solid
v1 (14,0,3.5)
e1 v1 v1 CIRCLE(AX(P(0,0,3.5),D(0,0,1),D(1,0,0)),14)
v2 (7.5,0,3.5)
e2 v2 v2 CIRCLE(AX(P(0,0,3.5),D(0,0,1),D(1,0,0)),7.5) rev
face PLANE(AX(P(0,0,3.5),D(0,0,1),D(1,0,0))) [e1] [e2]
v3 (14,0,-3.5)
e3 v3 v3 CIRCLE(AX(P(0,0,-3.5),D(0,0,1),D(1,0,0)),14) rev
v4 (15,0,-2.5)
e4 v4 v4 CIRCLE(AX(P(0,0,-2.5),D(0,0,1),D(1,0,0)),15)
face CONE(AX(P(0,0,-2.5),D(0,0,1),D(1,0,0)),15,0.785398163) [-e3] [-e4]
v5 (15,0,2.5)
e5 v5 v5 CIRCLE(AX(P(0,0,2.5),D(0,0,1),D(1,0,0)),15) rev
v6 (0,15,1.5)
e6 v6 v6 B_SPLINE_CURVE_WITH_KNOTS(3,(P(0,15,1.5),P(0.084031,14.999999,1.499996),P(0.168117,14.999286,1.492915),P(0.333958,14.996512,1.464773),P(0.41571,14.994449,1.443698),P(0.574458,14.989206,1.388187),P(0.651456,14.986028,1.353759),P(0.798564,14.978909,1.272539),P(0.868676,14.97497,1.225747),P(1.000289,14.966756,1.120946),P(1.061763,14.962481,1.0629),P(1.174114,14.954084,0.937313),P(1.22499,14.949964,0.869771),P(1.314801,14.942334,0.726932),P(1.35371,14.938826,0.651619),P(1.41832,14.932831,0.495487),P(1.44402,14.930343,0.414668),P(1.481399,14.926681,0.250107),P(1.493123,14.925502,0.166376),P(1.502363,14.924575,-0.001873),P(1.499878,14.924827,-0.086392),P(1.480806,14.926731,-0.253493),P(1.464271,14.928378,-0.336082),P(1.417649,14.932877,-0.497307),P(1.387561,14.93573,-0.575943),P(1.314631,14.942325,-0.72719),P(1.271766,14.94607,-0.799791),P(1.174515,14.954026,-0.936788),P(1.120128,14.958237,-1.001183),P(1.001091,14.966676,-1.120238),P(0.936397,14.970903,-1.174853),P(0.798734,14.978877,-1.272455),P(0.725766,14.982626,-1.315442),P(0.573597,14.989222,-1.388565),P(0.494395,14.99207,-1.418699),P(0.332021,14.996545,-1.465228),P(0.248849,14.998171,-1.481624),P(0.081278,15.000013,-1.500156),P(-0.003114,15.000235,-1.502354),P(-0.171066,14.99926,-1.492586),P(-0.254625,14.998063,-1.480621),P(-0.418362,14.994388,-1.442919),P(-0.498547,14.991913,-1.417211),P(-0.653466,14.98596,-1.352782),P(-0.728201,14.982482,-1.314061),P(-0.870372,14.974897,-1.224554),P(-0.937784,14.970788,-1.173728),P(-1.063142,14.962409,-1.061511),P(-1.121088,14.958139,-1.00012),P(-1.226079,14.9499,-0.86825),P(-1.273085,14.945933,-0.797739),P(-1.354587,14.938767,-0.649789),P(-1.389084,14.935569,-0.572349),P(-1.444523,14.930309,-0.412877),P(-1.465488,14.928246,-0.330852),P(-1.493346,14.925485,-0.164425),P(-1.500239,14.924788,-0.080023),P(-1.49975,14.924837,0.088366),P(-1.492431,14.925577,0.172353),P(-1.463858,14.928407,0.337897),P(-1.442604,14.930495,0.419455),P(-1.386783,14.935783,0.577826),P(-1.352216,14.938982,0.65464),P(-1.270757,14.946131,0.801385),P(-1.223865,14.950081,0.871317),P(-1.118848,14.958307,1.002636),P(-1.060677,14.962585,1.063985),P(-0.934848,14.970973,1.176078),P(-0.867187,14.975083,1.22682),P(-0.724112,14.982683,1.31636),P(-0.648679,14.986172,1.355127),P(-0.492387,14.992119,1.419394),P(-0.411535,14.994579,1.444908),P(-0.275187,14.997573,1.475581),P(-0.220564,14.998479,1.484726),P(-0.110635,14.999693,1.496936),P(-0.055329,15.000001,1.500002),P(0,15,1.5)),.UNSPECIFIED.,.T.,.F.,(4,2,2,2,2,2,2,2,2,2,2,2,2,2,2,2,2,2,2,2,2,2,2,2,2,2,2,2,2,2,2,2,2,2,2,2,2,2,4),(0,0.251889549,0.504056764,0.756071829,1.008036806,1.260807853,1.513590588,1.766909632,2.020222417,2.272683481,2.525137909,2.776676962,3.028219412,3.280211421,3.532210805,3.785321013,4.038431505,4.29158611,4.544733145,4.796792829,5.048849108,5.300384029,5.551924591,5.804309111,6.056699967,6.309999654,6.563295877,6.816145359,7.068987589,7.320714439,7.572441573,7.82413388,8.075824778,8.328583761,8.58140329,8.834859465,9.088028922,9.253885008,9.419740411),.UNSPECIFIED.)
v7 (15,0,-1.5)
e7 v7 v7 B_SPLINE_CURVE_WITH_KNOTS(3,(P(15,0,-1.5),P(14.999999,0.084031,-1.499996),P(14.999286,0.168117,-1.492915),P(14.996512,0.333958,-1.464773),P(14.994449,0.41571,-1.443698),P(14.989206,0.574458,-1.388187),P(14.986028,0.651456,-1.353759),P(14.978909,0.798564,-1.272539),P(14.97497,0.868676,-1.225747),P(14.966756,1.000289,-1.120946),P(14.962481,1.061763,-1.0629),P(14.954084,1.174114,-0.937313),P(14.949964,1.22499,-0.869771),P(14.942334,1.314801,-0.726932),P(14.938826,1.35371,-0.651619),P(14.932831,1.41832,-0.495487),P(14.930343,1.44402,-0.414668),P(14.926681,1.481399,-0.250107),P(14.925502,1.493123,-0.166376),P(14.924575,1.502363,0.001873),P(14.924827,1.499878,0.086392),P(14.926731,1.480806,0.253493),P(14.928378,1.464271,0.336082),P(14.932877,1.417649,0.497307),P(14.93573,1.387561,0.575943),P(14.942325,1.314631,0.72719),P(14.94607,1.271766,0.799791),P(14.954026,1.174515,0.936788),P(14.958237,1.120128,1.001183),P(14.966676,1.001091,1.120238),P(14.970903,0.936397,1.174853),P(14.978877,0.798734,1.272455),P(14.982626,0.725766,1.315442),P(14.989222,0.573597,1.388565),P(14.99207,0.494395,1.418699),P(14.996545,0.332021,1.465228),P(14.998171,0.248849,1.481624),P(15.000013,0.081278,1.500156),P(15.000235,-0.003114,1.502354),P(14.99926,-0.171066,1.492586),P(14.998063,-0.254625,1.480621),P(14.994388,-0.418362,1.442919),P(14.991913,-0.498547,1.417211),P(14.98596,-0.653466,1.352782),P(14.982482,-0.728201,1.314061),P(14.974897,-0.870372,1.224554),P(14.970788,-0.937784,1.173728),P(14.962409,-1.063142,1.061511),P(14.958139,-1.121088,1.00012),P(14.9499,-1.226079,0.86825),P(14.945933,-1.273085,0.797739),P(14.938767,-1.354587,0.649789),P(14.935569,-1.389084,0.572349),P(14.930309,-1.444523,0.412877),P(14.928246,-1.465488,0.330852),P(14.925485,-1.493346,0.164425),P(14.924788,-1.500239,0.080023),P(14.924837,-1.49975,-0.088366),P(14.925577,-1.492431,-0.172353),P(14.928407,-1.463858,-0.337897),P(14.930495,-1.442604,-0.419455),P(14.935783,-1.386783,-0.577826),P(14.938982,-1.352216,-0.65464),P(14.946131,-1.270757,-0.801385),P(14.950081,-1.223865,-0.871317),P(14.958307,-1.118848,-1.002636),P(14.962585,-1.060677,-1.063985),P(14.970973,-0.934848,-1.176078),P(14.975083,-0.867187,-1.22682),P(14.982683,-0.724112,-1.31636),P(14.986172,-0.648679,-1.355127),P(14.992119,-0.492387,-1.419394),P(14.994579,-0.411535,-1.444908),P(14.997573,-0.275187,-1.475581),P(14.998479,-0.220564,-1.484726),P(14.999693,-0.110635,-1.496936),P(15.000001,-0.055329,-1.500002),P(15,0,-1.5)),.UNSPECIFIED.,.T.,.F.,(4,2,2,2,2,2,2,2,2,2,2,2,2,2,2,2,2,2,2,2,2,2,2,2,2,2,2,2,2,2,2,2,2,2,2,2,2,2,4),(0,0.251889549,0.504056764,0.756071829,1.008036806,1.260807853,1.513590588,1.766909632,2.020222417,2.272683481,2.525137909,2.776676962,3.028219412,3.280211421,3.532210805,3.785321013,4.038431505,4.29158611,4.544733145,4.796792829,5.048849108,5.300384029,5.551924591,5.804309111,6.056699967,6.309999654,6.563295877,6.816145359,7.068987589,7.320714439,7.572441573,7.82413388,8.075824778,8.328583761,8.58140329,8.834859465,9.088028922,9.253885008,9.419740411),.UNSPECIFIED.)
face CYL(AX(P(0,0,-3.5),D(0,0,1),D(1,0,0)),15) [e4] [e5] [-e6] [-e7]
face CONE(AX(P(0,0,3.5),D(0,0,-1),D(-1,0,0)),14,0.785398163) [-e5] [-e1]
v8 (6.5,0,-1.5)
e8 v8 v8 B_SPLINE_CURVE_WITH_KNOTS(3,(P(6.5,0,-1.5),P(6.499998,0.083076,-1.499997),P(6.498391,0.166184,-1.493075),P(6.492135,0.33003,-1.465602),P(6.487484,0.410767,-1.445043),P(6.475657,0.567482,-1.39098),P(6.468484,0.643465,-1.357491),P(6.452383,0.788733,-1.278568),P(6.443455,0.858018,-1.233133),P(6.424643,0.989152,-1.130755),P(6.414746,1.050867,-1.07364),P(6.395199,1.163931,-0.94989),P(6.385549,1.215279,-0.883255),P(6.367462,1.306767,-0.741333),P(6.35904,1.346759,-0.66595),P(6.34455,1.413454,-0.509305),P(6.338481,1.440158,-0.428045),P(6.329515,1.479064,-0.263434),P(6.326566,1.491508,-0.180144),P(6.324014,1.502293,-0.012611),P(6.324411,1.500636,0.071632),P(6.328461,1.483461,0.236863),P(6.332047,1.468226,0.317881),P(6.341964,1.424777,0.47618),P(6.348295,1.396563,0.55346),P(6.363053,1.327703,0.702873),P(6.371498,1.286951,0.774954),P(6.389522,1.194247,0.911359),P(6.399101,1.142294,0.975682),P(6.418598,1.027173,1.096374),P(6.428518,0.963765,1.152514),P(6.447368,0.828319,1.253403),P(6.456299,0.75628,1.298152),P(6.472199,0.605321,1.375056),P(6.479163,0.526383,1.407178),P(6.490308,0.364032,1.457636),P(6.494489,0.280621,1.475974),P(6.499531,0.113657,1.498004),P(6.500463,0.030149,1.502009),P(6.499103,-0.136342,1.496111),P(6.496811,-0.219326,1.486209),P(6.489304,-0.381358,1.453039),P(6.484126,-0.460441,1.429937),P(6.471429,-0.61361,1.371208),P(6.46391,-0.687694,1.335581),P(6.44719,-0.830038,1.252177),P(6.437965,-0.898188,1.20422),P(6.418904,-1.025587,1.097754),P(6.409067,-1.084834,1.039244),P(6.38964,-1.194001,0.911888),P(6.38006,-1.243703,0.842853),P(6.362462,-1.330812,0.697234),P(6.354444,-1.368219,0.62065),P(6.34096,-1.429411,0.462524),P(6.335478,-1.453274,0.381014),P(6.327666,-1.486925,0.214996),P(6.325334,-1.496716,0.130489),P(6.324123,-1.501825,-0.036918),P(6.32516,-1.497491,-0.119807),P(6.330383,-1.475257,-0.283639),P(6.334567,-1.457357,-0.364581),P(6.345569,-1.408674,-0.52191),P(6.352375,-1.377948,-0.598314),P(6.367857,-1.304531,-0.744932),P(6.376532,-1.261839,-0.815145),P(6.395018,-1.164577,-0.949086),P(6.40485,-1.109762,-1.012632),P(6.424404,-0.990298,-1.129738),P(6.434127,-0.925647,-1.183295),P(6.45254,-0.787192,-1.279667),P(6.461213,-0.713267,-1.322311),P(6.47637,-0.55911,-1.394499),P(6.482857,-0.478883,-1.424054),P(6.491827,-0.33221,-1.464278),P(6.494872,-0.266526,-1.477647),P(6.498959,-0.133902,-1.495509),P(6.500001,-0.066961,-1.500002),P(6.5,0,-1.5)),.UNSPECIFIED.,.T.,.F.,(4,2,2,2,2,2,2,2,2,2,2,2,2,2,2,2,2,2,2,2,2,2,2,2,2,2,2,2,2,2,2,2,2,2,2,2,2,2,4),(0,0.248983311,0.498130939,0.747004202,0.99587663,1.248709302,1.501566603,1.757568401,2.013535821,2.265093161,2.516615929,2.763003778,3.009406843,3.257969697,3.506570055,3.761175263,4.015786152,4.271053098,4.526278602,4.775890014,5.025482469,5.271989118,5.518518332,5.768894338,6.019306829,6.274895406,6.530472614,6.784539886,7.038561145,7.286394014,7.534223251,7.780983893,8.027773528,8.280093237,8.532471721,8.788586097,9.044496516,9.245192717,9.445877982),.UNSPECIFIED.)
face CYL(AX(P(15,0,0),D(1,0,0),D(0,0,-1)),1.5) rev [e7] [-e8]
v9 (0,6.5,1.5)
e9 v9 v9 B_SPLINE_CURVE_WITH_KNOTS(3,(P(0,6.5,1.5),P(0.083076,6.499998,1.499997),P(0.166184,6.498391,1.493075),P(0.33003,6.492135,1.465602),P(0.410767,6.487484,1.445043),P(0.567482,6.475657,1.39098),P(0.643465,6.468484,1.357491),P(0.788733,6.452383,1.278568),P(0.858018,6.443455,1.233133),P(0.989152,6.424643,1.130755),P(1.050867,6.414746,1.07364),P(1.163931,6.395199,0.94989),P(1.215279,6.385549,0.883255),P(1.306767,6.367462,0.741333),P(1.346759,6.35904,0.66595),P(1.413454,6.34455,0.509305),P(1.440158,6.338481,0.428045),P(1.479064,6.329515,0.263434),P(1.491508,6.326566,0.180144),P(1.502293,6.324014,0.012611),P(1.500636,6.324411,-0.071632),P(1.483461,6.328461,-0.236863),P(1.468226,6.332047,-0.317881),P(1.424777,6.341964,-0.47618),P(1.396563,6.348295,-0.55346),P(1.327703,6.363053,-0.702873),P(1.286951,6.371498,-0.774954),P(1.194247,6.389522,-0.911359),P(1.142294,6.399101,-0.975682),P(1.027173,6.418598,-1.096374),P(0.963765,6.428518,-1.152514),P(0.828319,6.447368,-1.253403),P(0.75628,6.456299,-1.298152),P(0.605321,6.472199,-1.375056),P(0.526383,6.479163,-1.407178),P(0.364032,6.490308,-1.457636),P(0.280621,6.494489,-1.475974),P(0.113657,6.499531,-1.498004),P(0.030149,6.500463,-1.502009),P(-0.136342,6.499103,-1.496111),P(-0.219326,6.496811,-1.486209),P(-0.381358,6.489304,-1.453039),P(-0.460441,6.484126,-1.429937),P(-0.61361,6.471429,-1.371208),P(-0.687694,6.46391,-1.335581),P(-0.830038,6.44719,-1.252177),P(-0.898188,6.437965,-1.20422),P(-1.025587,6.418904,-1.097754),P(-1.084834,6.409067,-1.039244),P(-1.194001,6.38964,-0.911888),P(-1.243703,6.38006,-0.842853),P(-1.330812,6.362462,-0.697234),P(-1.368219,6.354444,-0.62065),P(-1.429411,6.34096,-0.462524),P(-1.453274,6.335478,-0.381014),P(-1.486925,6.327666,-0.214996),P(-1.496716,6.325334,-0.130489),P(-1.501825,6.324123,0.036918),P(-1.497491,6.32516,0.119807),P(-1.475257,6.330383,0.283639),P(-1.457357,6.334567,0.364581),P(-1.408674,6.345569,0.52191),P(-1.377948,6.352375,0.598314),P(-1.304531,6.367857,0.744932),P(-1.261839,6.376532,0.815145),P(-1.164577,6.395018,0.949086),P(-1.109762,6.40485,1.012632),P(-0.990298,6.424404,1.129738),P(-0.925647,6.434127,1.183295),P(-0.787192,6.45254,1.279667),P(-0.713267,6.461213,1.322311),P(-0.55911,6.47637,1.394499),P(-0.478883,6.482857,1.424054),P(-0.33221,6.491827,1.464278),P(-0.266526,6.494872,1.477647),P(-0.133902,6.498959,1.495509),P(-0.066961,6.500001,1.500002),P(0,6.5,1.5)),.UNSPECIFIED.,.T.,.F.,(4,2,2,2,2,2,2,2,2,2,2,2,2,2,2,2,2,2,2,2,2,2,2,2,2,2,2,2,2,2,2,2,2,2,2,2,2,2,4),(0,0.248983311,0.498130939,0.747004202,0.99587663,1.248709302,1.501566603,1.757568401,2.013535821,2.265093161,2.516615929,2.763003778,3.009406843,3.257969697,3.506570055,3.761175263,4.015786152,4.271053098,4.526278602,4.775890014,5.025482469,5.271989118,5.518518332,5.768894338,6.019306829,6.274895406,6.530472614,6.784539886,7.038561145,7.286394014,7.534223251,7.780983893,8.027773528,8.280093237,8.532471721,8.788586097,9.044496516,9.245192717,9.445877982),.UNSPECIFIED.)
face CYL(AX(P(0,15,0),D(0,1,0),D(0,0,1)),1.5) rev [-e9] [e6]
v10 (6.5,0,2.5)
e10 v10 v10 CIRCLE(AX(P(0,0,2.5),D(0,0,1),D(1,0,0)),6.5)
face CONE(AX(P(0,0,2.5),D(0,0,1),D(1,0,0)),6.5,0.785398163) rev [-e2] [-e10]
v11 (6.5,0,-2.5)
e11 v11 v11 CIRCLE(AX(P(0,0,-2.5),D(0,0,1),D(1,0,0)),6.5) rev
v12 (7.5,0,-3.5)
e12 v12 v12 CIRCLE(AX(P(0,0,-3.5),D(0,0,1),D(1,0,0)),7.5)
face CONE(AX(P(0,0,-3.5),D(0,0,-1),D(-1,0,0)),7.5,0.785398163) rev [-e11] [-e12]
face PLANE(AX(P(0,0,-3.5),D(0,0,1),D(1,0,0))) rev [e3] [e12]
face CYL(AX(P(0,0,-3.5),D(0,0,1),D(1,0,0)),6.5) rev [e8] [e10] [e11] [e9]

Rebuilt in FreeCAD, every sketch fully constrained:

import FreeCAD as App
import Part
import Sketcher

V = App.Vector


def edges_at(feature, points):
    """Names of the edges that pass closest to the given points."""
    edges = feature.Shape.Edges
    near = lambda p: min(range(len(edges)), key=lambda i: edges[i].distToShape(Part.Vertex(*p))[0])
    return sorted({f"Edge{near(p) + 1}" for p in points})

doc = App.newDocument("Part")
body = doc.addObject("PartDesign::Body", "Body")

# Sketch on XY plane
sketch1 = doc.addObject("Sketcher::SketchObject", "Sketch")
body.addObject(sketch1)
sketch1.AttachmentSupport = (doc.XY_Plane, [""])
sketch1.MapMode = "FlatFace"
sketch1.addGeometry(Part.Circle(V(0, 0, 0), V(0, 0, 1), 15), False)
sketch1.addGeometry(Part.Circle(V(0, 0, 0), V(0, 0, 1), 6.5), False)
sketch1.addConstraint(Sketcher.Constraint("Coincident", 0, 3, -1, 1))
sketch1.addConstraint(Sketcher.Constraint("Coincident", 1, 3, -1, 1))
sketch1.addConstraint(Sketcher.Constraint("Diameter", 0, 30.0))
sketch1.addConstraint(Sketcher.Constraint("Diameter", 1, 13.0))
pad1 = doc.addObject("PartDesign::Pad", "Pad")
body.addObject(pad1)
pad1.Profile = sketch1
pad1.Type = "TwoLengths"
pad1.Length = 3.5
pad1.Length2 = 3.5

# Sketch on XZ plane
sketch2 = doc.addObject("Sketcher::SketchObject", "Sketch001")
body.addObject(sketch2)
sketch2.AttachmentSupport = (doc.XZ_Plane, [""])
sketch2.MapMode = "FlatFace"
sketch2.AttachmentOffset = App.Placement(V(0, 0, -15), App.Rotation())
sketch2.addGeometry(Part.Circle(V(0, 0, 0), V(0, 0, 1), 1.5), False)
sketch2.addConstraint(Sketcher.Constraint("Coincident", 0, 3, -1, 1))
sketch2.addConstraint(Sketcher.Constraint("Diameter", 0, 3.0))
doc.recompute()
hole = doc.addObject("PartDesign::Hole", "Hole")
body.addObject(hole)
hole.Profile = sketch2
hole.ThreadType = "None"
hole.Diameter = 3
hole.DepthType = "Dimension"
hole.Depth = 12
hole.DrillPoint = "Angled"
hole.DrillPointAngle = 118
hole.Reversed = True

# Sketch on YZ plane
sketch3 = doc.addObject("Sketcher::SketchObject", "Sketch002")
body.addObject(sketch3)
sketch3.AttachmentSupport = (doc.YZ_Plane, [""])
sketch3.MapMode = "FlatFace"
sketch3.AttachmentOffset = App.Placement(V(0, 0, 15), App.Rotation())
sketch3.addGeometry(Part.Circle(V(0, 0, 0), V(0, 0, 1), 1.5), False)
sketch3.addConstraint(Sketcher.Constraint("Coincident", 0, 3, -1, 1))
sketch3.addConstraint(Sketcher.Constraint("Diameter", 0, 3.0))
doc.recompute()
hole2 = doc.addObject("PartDesign::Hole", "Hole001")
body.addObject(hole2)
hole2.Profile = sketch3
hole2.ThreadType = "None"
hole2.Diameter = 3
hole2.DepthType = "Dimension"
hole2.Depth = 12
hole2.DrillPoint = "Angled"
hole2.DrillPointAngle = 118
doc.recompute()

chamfer = doc.addObject("PartDesign::Chamfer", "Chamfer")
body.addObject(chamfer)
chamfer.Base = (hole2, edges_at(hole2, [
    (-15, 0, -3.5),
    (-6.5, 0, -3.5),
    (-15, 0, 3.5),
    (-6.5, 0, 3.5),
]))
chamfer.Size = 1

doc.recompute()
